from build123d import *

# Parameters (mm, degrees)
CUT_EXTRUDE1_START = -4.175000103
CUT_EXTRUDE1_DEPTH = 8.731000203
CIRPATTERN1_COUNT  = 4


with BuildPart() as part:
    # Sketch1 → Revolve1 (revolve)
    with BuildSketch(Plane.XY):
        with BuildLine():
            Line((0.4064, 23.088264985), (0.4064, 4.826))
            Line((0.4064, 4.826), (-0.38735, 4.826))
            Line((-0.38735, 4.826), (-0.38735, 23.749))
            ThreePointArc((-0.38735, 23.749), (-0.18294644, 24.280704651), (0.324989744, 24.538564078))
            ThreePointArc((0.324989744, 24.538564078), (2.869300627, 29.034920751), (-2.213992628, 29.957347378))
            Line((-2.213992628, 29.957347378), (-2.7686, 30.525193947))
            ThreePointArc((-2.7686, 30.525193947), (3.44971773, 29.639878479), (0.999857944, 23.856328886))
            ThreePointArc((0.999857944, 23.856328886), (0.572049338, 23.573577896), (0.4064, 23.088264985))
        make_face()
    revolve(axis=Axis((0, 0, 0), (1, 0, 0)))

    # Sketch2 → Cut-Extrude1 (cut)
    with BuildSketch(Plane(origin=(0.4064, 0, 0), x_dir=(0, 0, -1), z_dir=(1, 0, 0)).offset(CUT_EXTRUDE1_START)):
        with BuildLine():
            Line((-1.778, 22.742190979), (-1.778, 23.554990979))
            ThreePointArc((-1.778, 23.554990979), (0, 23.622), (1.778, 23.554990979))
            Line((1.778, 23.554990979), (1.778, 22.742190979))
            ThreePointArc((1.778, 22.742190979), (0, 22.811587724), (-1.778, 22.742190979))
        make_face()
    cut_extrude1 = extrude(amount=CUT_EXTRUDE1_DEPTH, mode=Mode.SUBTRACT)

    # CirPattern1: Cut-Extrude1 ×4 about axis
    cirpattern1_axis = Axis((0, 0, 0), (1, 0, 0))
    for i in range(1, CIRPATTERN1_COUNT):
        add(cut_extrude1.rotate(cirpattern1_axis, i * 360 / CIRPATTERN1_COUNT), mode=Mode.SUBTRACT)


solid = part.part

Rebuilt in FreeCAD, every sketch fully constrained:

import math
import FreeCAD as App
import Part
import Sketcher
from FreeCAD import Vector
Q = App.Units.Quantity

doc = App.newDocument("Part")
params = doc.addObject("Spreadsheet::Sheet", "Params")
for row, (alias, value) in enumerate([
    ("sketch1_radius", "0.03125 in"),
    ("sketch1_radius2", "0.156 in"),
    ("sketch1_height", "0.745 in"),
    ("sketch1_length", "0.03125 in"),
    ("revolution_angle", "360 deg"),
    ("sketch2_radius", "0.93 in"),
    ("sketch2_width", "0.032 in"),
    ("pocket1_length", "8.731 mm"),
], start=1):
    params.set(f"A{row}", alias)
    params.set(f"B{row}", "=" + value)
    params.setAlias(f"B{row}", alias)

body = doc.addObject("PartDesign::Body", "Body")

# Sketch on XY plane
sketch1 = doc.addObject("Sketcher::SketchObject", "Sketch")
body.addObject(sketch1)
sketch1.AttachmentSupport = (doc.XY_Plane, [""])
sketch1.MapMode = "FlatFace"
sketch1.addGeometry(Part.LineSegment(Vector(0.4064, 4.826, 0), Vector(0.4064, 23.088265, 0)), False)
sketch1.addGeometry(Part.ArcOfCircle(Part.Circle(Vector(1.20015, 23.088265, 0), Vector(0, 0, 1), 0.79375), math.radians(104.615814), math.radians(180)), False)
sketch1.addGeometry(Part.ArcOfCircle(Part.Circle(Vector(0, 27.690504, 0), Vector(0, 0, 1), 3.9624), math.radians(-75.384186), math.radians(134.324235)), False)
sketch1.addGeometry(Part.LineSegment(Vector(-2.7686, 30.525194, 0), Vector(-2.213993, 29.957347, 0)), False)
sketch1.addGeometry(Part.ArcOfCircle(Part.Circle(Vector(0, 27.690504, 0), Vector(0, 0, 1), 3.16865), math.radians(-84.113158), math.radians(134.324235)), False)
sketch1.addGeometry(Part.ArcOfCircle(Part.Circle(Vector(0.4064, 23.749, 0), Vector(0, 0, 1), 0.79375), math.radians(95.886842), math.radians(180)), False)
sketch1.addGeometry(Part.LineSegment(Vector(-0.38735, 23.749, 0), Vector(-0.38735, 4.826, 0)), False)
sketch1.addGeometry(Part.LineSegment(Vector(-0.38735, 4.826, 0), Vector(0.4064, 4.826, 0)), False)
sketch1.addConstraint(Sketcher.Constraint("Tangent", 0, 2, 1, 2))
sketch1.addConstraint(Sketcher.Constraint("Tangent", 1, 1, 2, 1))
sketch1.addConstraint(Sketcher.Constraint("Coincident", 2, 2, 3, 1))
sketch1.addConstraint(Sketcher.Constraint("Coincident", 3, 2, 4, 2))
sketch1.addConstraint(Sketcher.Constraint("Tangent", 4, 1, 5, 1))
sketch1.addConstraint(Sketcher.Constraint("Tangent", 5, 2, 6, 1))
sketch1.addConstraint(Sketcher.Constraint("Coincident", 6, 2, 7, 1))
sketch1.addConstraint(Sketcher.Constraint("Coincident", 7, 2, 0, 1))
sketch1.addConstraint(Sketcher.Constraint("Vertical", 0))
sketch1.addConstraint(Sketcher.Constraint("Vertical", 6))
sketch1.addConstraint(Sketcher.Constraint("Horizontal", 7))
sketch1.addConstraint(Sketcher.Constraint("Coincident", 4, 3, 2, 3))
sketch1.addConstraint(Sketcher.Constraint("Equal", 1, 5))
sketch1.addConstraint(Sketcher.Constraint("PointOnObject", 2, 3, -2))
sketch1.addConstraint(Sketcher.Constraint("Vertical", 5, 3, 0, 2))
sketch1.addConstraint(Sketcher.Constraint("Radius", 1, Q("0.03125 in")))
sketch1.addConstraint(Sketcher.Constraint("Radius", 2, Q("0.156 in")))
sketch1.addConstraint(Sketcher.Constraint("DistanceY", 6, 2, 6, 1, Q("0.745 in")))
sketch1.addConstraint(Sketcher.Constraint("DistanceY", -1, 1, 6, 2, Q("0.19 in")))
sketch1.addConstraint(Sketcher.Constraint("Distance", 3, Q("0.03125 in")))
sketch1.addConstraint(Sketcher.Constraint("DistanceX", -1, 1, 5, 3, Q("0.016 in")))
sketch1.addConstraint(Sketcher.Constraint("DistanceX", 2, 2, -1, 1, Q("0.109 in")))
sketch1.addConstraint(Sketcher.Constraint("DistanceX", 3, 2, 1, 1, 3.213851))
sketch1.setExpression("Constraints[15]", "Params.sketch1_radius")
sketch1.setExpression("Constraints[16]", "Params.sketch1_radius2")
sketch1.setExpression("Constraints[17]", "Params.sketch1_height")
sketch1.setExpression("Constraints[19]", "Params.sketch1_length")
revolution = doc.addObject("PartDesign::Revolution", "Revolution")
body.addObject(revolution)
revolution.Profile = sketch1
revolution.ReferenceAxis = (sketch1, ["H_Axis"])
revolution.setExpression("Angle", "Params.revolution_angle")

# Sketch on YZ plane
sketch2 = doc.addObject("Sketcher::SketchObject", "Sketch001")
body.addObject(sketch2)
sketch2.AttachmentSupport = (doc.YZ_Plane, [""])
sketch2.MapMode = "FlatFace"
sketch2.AttachmentOffset = App.Placement(Vector(0, 0, -3.7686), App.Rotation())
sketch2.addGeometry(Part.LineSegment(Vector(23.554991, 1.778, 0), Vector(22.742191, 1.778, 0)), False)
sketch2.addGeometry(Part.ArcOfCircle(Part.Circle(Vector(0, 0, 0), Vector(0, 0, 1), 22.811588), math.radians(-4.47033), math.radians(4.47033)), False)
sketch2.addGeometry(Part.LineSegment(Vector(22.742191, -1.778, 0), Vector(23.554991, -1.778, 0)), False)
sketch2.addGeometry(Part.ArcOfCircle(Part.Circle(Vector(0, 0, 0), Vector(0, 0, 1), 23.622), math.radians(-4.316668), math.radians(4.316668)), False)
sketch2.addConstraint(Sketcher.Constraint("Coincident", 0, 2, 1, 2))
sketch2.addConstraint(Sketcher.Constraint("Coincident", 1, 1, 2, 1))
sketch2.addConstraint(Sketcher.Constraint("Coincident", 2, 2, 3, 1))
sketch2.addConstraint(Sketcher.Constraint("Coincident", 3, 2, 0, 1))
sketch2.addConstraint(Sketcher.Constraint("Horizontal", 0))
sketch2.addConstraint(Sketcher.Constraint("Horizontal", 2))
sketch2.addConstraint(Sketcher.Constraint("Coincident", 1, 3, -1, 1))
sketch2.addConstraint(Sketcher.Constraint("Coincident", 3, 3, -1, 1))
sketch2.addConstraint(Sketcher.Constraint("Vertical", 0, 2, 1, 1))
sketch2.addConstraint(Sketcher.Constraint("Radius", 3, Q("0.93 in")))
sketch2.addConstraint(Sketcher.Constraint("DistanceX", 0, 2, 0, 1, Q("0.032 in")))
sketch2.addConstraint(Sketcher.Constraint("DistanceY", -1, 1, 0, 2, Q("0.07 in")))
sketch2.setExpression("Constraints[9]", "Params.sketch2_radius")
sketch2.setExpression("Constraints[10]", "Params.sketch2_width")
pocket1 = doc.addObject("PartDesign::Pocket", "Pocket")
body.addObject(pocket1)
pocket1.Profile = sketch2
pocket1.setExpression("Length", "Params.pocket1_length")
pocket1.Reversed = True
doc.recompute()

polarpattern = doc.addObject("PartDesign::PolarPattern", "PolarPattern")
body.addObject(polarpattern)
polarpattern.Originals = [pocket1]
polarpattern.Axis = (doc.X_Axis, [""])
polarpattern.Angle = 360
polarpattern.Occurrences = 4
body.Tip = polarpattern

doc.recompute()
